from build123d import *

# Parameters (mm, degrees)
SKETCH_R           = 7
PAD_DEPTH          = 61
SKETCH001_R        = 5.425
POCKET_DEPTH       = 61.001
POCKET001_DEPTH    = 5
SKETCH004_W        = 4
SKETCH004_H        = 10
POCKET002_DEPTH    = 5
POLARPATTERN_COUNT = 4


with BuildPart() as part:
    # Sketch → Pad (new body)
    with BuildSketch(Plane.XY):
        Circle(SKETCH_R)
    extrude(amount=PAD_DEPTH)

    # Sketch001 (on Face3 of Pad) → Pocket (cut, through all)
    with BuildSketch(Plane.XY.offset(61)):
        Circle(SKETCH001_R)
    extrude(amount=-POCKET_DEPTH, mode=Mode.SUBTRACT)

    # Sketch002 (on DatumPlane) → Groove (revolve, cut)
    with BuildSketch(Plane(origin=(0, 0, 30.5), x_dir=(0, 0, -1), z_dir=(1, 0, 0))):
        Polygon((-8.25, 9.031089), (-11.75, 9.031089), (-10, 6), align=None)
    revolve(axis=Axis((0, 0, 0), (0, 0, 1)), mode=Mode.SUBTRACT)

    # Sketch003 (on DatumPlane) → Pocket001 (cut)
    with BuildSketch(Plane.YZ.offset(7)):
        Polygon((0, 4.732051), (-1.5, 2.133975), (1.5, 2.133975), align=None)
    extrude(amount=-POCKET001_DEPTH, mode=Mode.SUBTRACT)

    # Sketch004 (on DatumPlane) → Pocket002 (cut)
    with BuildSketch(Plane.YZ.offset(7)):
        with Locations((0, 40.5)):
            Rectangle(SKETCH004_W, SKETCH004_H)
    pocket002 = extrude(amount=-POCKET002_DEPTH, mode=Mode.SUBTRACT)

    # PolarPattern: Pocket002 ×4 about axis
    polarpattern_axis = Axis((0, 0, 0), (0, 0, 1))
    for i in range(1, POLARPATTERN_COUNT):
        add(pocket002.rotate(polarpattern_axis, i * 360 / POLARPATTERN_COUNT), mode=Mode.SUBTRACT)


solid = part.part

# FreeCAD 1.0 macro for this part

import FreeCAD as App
import Part
import Sketcher

V = App.Vector
Q = App.Units.Quantity


def add_polygon(sketch, points):
    """Adds a closed chain of lines whose ends are joined by coincident constraints."""
    first, n = sketch.GeometryCount, len(points)
    for a, b in zip(points, points[1:] + points[:1]):
        sketch.addGeometry(Part.LineSegment(App.Vector(*a, 0), App.Vector(*b, 0)), False)
    for i in range(n):
        sketch.addConstraint(Sketcher.Constraint("Coincident", first + i, 2, first + (i + 1) % n, 1))

doc = App.newDocument("Part")
body = doc.addObject("PartDesign::Body", "Body")

# Sketch on XY plane
sketch1 = doc.addObject("Sketcher::SketchObject", "Sketch")
body.addObject(sketch1)
sketch1.AttachmentSupport = (doc.XY_Plane, [""])
sketch1.MapMode = "FlatFace"
sketch1.addGeometry(Part.Circle(V(0, 0, 0), V(0, 0, 1), 7), False)
sketch1.addConstraint([
    Sketcher.Constraint("Coincident", 0, 3, -1, 1),
    Sketcher.Constraint("Diameter", 0, 14.0),
])
pad1 = doc.addObject("PartDesign::Pad", "Pad")
body.addObject(pad1)
pad1.Profile = sketch1
pad1.Length = 61

# Sketch on XY plane
sketch2 = doc.addObject("Sketcher::SketchObject", "Sketch001")
body.addObject(sketch2)
sketch2.AttachmentSupport = (doc.XY_Plane, [""])
sketch2.MapMode = "FlatFace"
sketch2.AttachmentOffset = App.Placement(V(0, 0, 61), App.Rotation())
sketch2.addGeometry(Part.Circle(V(0, 0, 0), V(0, 0, 1), 5), False)
sketch2.addConstraint([
    Sketcher.Constraint("Coincident", 0, 3, -1, 1),
    Sketcher.Constraint("Diameter", 0, 10.85),
])
pocket1 = doc.addObject("PartDesign::Pocket", "Pocket")
body.addObject(pocket1)
pocket1.Profile = sketch2
pocket1.Type = "ThroughAll"

# Sketch on YZ plane
sketch3 = doc.addObject("Sketcher::SketchObject", "Sketch002")
body.addObject(sketch3)
sketch3.AttachmentSupport = (doc.YZ_Plane, [""])
sketch3.MapMode = "FlatFace"
add_polygon(sketch3, [(9, 38.8), (9, 42.2), (6, 40.5)])  # lines 0-2
sketch3.addConstraint([
    Sketcher.Constraint("Vertical", 0),
    Sketcher.Constraint("Equal", 1, 2),
    Sketcher.Constraint("Angle", 1, Q("-150.000001 deg")),
    Sketcher.Constraint("DistanceY", 0, 1, 0, 2, 3.5),
    Sketcher.Constraint("DistanceX", -1, 1, 1, 2, 6.0),
    Sketcher.Constraint("DistanceY", -1, 1, 1, 2, 40.5),
])
groove = doc.addObject("PartDesign::Groove", "Groove")
body.addObject(groove)
groove.Profile = sketch3
groove.ReferenceAxis = (sketch3, ["V_Axis"])
groove.Angle = 360

# Sketch on YZ plane
sketch4 = doc.addObject("Sketcher::SketchObject", "Sketch003")
body.addObject(sketch4)
sketch4.AttachmentSupport = (doc.YZ_Plane, [""])
sketch4.MapMode = "FlatFace"
sketch4.AttachmentOffset = App.Placement(V(0, 0, 7), App.Rotation())
add_polygon(sketch4, [(0, 4.7), (-1.5, 2.1), (1.5, 2.1)])  # lines 0-2
sketch4.addConstraint([
    Sketcher.Constraint("Horizontal", 1),
    Sketcher.Constraint("PointOnObject", 2, 2, -2),
    Sketcher.Constraint("Equal", 0, 2),
    Sketcher.Constraint("DistanceX", 1, 1, 1, 2, 3.0),
    Sketcher.Constraint("Angle", 0, Q("-120.000002 deg")),
    Sketcher.Constraint("DistanceY", -1, 1, 2, 2, 4.732051),
])
pocket2 = doc.addObject("PartDesign::Pocket", "Pocket001")
body.addObject(pocket2)
pocket2.Profile = sketch4
pocket2.Length = 5

# Sketch on YZ plane
sketch5 = doc.addObject("Sketcher::SketchObject", "Sketch004")
body.addObject(sketch5)
sketch5.AttachmentSupport = (doc.YZ_Plane, [""])
sketch5.MapMode = "FlatFace"
sketch5.AttachmentOffset = App.Placement(V(0, 0, 7), App.Rotation())
add_polygon(sketch5, [(-2, 45.5), (-2, 35.5), (2, 35.5), (2, 45.5)])  # lines 0-3
sketch5.addConstraint([
    Sketcher.Constraint("Vertical", 0),
    Sketcher.Constraint("Horizontal", 1),
    Sketcher.Constraint("Vertical", 2),
    Sketcher.Constraint("Horizontal", 3),
    Sketcher.Constraint("DistanceX", 1, 1, 1, 2, 4.0),
    Sketcher.Constraint("DistanceY", 0, 2, 0, 1, 10.0),
    Sketcher.Constraint("DistanceX", 0, 2, -1, 1, 2.0),
    Sketcher.Constraint("DistanceY", -1, 1, 0, 2, 35.5),
])
pocket3 = doc.addObject("PartDesign::Pocket", "Pocket002")
body.addObject(pocket3)
pocket3.Profile = sketch5
pocket3.Length = 5
doc.recompute()

polarpattern = doc.addObject("PartDesign::PolarPattern", "PolarPattern")
body.addObject(polarpattern)
polarpattern.Originals = [pocket3]
polarpattern.Axis = (doc.Z_Axis, [""])
polarpattern.Angle = 360
polarpattern.Occurrences = 4
body.Tip = polarpattern

doc.recompute()
